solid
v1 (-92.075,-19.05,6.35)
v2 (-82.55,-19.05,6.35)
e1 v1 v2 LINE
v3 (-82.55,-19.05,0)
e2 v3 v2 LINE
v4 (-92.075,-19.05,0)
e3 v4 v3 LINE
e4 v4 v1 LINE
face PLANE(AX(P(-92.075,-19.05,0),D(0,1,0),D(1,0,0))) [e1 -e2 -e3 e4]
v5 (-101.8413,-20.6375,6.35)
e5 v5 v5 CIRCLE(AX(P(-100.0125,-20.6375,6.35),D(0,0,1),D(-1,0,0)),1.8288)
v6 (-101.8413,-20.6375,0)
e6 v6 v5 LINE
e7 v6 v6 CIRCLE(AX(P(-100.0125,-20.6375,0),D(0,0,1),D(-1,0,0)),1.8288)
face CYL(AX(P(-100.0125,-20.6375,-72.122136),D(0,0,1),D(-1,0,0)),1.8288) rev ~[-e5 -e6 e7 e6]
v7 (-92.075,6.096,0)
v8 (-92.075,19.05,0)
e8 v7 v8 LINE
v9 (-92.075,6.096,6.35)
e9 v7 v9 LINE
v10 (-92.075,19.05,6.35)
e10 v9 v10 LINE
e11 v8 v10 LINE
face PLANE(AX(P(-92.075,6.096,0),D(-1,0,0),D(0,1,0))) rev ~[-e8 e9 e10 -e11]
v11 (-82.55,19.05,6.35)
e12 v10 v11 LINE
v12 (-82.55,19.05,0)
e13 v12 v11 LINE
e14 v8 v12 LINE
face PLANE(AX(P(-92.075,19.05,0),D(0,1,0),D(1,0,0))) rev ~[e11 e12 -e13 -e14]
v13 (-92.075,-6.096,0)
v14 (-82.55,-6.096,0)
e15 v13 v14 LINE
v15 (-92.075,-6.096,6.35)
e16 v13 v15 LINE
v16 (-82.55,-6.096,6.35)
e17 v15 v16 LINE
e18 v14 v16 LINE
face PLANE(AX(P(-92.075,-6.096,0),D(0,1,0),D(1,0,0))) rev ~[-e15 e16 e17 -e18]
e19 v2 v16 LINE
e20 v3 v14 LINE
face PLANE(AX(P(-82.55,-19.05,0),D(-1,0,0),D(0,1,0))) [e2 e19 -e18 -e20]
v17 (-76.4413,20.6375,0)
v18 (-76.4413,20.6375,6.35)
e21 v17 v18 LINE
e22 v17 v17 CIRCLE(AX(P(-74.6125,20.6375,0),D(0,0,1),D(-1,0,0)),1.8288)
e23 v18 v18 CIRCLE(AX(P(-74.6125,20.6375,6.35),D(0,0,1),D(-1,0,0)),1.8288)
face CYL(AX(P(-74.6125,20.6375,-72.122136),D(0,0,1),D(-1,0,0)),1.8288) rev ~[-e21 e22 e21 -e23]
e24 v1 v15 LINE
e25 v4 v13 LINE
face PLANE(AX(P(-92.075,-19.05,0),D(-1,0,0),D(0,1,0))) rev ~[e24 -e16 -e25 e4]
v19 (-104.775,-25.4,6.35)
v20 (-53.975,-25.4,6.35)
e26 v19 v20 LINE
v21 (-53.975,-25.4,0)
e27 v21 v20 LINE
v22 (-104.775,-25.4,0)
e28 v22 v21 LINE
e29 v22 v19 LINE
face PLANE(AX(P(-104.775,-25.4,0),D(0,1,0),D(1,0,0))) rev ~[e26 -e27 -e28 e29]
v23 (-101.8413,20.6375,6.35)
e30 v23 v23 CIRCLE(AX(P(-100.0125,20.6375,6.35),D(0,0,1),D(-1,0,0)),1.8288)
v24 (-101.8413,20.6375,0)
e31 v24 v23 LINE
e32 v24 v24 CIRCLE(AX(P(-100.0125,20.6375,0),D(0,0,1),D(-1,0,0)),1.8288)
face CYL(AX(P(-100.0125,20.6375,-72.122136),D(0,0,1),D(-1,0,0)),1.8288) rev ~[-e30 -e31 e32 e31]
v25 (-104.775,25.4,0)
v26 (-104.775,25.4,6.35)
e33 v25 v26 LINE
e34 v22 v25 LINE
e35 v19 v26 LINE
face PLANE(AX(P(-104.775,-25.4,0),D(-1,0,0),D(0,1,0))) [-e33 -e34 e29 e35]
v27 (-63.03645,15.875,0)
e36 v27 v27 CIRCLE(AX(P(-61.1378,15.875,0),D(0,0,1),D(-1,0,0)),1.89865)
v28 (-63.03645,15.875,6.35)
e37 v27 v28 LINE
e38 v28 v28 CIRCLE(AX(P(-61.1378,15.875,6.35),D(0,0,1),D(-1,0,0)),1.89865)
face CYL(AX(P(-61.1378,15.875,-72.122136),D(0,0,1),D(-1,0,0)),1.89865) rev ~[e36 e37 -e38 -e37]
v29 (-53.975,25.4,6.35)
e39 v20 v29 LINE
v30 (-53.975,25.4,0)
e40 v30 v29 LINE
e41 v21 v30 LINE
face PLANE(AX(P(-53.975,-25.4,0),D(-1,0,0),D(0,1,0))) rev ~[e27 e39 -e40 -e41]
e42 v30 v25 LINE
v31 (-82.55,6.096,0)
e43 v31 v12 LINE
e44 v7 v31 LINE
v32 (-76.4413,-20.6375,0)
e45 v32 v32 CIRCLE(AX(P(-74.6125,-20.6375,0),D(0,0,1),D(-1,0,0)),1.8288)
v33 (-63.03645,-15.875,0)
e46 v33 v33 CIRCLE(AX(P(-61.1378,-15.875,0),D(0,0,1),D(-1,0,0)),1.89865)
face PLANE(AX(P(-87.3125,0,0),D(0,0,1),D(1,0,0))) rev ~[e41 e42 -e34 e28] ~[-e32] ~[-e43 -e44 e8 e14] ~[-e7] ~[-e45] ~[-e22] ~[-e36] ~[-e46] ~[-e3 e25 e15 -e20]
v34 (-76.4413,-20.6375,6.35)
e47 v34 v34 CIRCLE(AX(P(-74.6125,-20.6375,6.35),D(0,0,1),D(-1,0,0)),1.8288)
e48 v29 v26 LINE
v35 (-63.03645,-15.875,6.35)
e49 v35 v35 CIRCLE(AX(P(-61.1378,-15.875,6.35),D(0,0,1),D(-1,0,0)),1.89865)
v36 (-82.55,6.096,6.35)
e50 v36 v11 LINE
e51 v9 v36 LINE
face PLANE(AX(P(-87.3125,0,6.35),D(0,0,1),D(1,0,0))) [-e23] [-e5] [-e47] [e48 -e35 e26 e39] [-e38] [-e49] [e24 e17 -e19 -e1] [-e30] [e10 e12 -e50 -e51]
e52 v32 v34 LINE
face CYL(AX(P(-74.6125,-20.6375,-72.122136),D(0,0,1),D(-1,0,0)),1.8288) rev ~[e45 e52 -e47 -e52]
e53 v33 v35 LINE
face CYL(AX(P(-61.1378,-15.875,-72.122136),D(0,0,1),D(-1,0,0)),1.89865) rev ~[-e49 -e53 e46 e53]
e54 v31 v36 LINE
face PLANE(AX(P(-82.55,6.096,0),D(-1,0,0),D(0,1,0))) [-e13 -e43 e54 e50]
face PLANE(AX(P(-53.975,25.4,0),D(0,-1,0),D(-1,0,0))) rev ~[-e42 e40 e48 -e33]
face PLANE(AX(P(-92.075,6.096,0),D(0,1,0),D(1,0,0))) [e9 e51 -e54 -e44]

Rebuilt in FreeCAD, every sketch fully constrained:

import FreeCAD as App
import Part
import Sketcher

V = App.Vector
Q = App.Units.Quantity

doc = App.newDocument("Part")
body = doc.addObject("PartDesign::Body", "Body")

# Sketch on XY plane
sketch1 = body.newObject("Sketcher::SketchObject", "Sketch")
sketch1.AttachmentSupport = (doc.getObject("XY_Plane"), [""])
sketch1.MapMode = "FlatFace"
sketch1.addGeometry(Part.LineSegment(V(-105, 25, 0), V(-105, -25, 0)), False)
sketch1.addGeometry(Part.LineSegment(V(-105, -25, 0), V(-54, -25, 0)), False)
sketch1.addGeometry(Part.LineSegment(V(-54, -25, 0), V(-54, 25, 0)), False)
sketch1.addGeometry(Part.LineSegment(V(-54, 25, 0), V(-105, 25, 0)), False)
sketch1.addGeometry(Part.LineSegment(V(-83, -19, 0), V(-92, -19, 0)), False)
sketch1.addGeometry(Part.LineSegment(V(-92, -19, 0), V(-92, -6, 0)), False)
sketch1.addGeometry(Part.LineSegment(V(-92, -6, 0), V(-83, -6, 0)), False)
sketch1.addGeometry(Part.LineSegment(V(-83, -6, 0), V(-83, -19, 0)), False)
sketch1.addGeometry(Part.LineSegment(V(-83, 6, 0), V(-92, 6, 0)), False)
sketch1.addGeometry(Part.LineSegment(V(-92, 6, 0), V(-92, 19, 0)), False)
sketch1.addGeometry(Part.LineSegment(V(-92, 19, 0), V(-83, 19, 0)), False)
sketch1.addGeometry(Part.LineSegment(V(-83, 19, 0), V(-83, 6, 0)), False)
sketch1.addConstraint(Sketcher.Constraint("Coincident", 0, 2, 1, 1))
sketch1.addConstraint(Sketcher.Constraint("Coincident", 1, 2, 2, 1))
sketch1.addConstraint(Sketcher.Constraint("Coincident", 2, 2, 3, 1))
sketch1.addConstraint(Sketcher.Constraint("Coincident", 3, 2, 0, 1))
sketch1.addConstraint(Sketcher.Constraint("Coincident", 4, 2, 5, 1))
sketch1.addConstraint(Sketcher.Constraint("Coincident", 5, 2, 6, 1))
sketch1.addConstraint(Sketcher.Constraint("Coincident", 6, 2, 7, 1))
sketch1.addConstraint(Sketcher.Constraint("Coincident", 7, 2, 4, 1))
sketch1.addConstraint(Sketcher.Constraint("Coincident", 8, 2, 9, 1))
sketch1.addConstraint(Sketcher.Constraint("Coincident", 9, 2, 10, 1))
sketch1.addConstraint(Sketcher.Constraint("Coincident", 10, 2, 11, 1))
sketch1.addConstraint(Sketcher.Constraint("Coincident", 11, 2, 8, 1))
sketch1.addConstraint(Sketcher.Constraint("Vertical", 0))
sketch1.addConstraint(Sketcher.Constraint("Horizontal", 1))
sketch1.addConstraint(Sketcher.Constraint("Vertical", 2))
sketch1.addConstraint(Sketcher.Constraint("Horizontal", 3))
sketch1.addConstraint(Sketcher.Constraint("Horizontal", 4))
sketch1.addConstraint(Sketcher.Constraint("Vertical", 5))
sketch1.addConstraint(Sketcher.Constraint("Horizontal", 6))
sketch1.addConstraint(Sketcher.Constraint("Vertical", 7))
sketch1.addConstraint(Sketcher.Constraint("Horizontal", 8))
sketch1.addConstraint(Sketcher.Constraint("Vertical", 9))
sketch1.addConstraint(Sketcher.Constraint("Horizontal", 10))
sketch1.addConstraint(Sketcher.Constraint("Vertical", 11))
sketch1.addConstraint(Sketcher.Constraint("Symmetric", 5, 2, 8, 2, -1))
sketch1.addConstraint(Sketcher.Constraint("Symmetric", 7, 2, 10, 2, -1))
sketch1.addConstraint(Sketcher.Constraint("Equal", 3, 0))
sketch1.addConstraint(Sketcher.Constraint("DistanceX", 1, 1, 1, 2, Q("2 in")))
sketch1.addConstraint(Sketcher.Constraint("DistanceY", 0, 2, -1, 1, Q("1 in")))
sketch1.addConstraint(Sketcher.Constraint("DistanceY", 5, 1, 5, 2, Q("0.51 in")))
sketch1.addConstraint(Sketcher.Constraint("DistanceX", 0, 2, 4, 2, Q("0.5 in")))
sketch1.addConstraint(Sketcher.Constraint("DistanceY", 4, 2, 9, 2, Q("1.5 in")))
sketch1.addConstraint(Sketcher.Constraint("DistanceX", 4, 2, 4, 1, Q("0.375 in")))
sketch1.addConstraint(Sketcher.Constraint("DistanceX", 6, 2, -1, 1, Q("3.25 in")))
pad1 = body.newObject("PartDesign::Pad", "Pad")
pad1.Profile = sketch1
pad1.Length = Q("0.25 in")

# Sketch on XY plane
sketch2 = body.newObject("Sketcher::SketchObject", "Sketch001")
sketch2.AttachmentSupport = (doc.getObject("XY_Plane"), [""])
sketch2.MapMode = "FlatFace"
sketch2.addGeometry(Part.Circle(V(-100, 20.6, 0), V(0, 0, 1), 1.8), False)
sketch2.addGeometry(Part.Circle(V(-74.6, 20.6, 0), V(0, 0, 1), 1.8), False)
sketch2.addGeometry(Part.Circle(V(-74.6, -20.6, 0), V(0, 0, 1), 1.8), False)
sketch2.addGeometry(Part.Circle(V(-100, -20.6, 0), V(0, 0, 1), 1.8), False)
sketch2.addConstraint(Sketcher.Constraint("Equal", 0, 1))
sketch2.addConstraint(Sketcher.Constraint("Equal", 1, 2))
sketch2.addConstraint(Sketcher.Constraint("Equal", 2, 3))
sketch2.addConstraint(Sketcher.Constraint("Symmetric", 1, 3, 2, 3, -1))
sketch2.addConstraint(Sketcher.Constraint("Symmetric", 0, 3, 3, 3, -1))
sketch2.addConstraint(Sketcher.Constraint("Horizontal", 0, 3, 1, 3))
sketch2.addConstraint(Sketcher.Constraint("Diameter", 0, Q("0.144 in")))
sketch2.addConstraint(Sketcher.Constraint("DistanceX", 0, 3, 1, 3, Q("1 in")))
sketch2.addConstraint(Sketcher.Constraint("DistanceX", 0, 3, -1, 1, Q("3.9375 in")))
sketch2.addConstraint(Sketcher.Constraint("DistanceY", -1, 1, 0, 3, Q("0.8125 in")))
doc.recompute()
hole = body.newObject("PartDesign::Hole", "Hole")
hole.Profile = sketch2
hole.ThreadType = "None"
hole.Diameter = Q("0.144 in")
hole.DepthType = "ThroughAll"
hole.Reversed = True

# Sketch on XY plane
sketch3 = body.newObject("Sketcher::SketchObject", "Sketch002")
sketch3.AttachmentSupport = (doc.getObject("XY_Plane"), [""])
sketch3.MapMode = "FlatFace"
sketch3.addGeometry(Part.Circle(V(-61.1, -15.9, 0), V(0, 0, 1), 1.9), False)
sketch3.addGeometry(Part.Circle(V(-61.1, 15.9, 0), V(0, 0, 1), 1.9), False)
sketch3.addConstraint(Sketcher.Constraint("Equal", 0, 1))
sketch3.addConstraint(Sketcher.Constraint("Symmetric", 0, 3, 1, 3, -1))
sketch3.addConstraint(Sketcher.Constraint("Diameter", 0, Q("0.1495 in")))
sketch3.addConstraint(Sketcher.Constraint("DistanceY", 0, 3, 1, 3, Q("1.25 in")))
sketch3.addConstraint(Sketcher.Constraint("DistanceX", 0, 3, -1, 1, Q("2.407 in")))
doc.recompute()
hole2 = body.newObject("PartDesign::Hole", "Hole001")
hole2.Profile = sketch3
hole2.ThreadType = "None"
hole2.Diameter = Q("0.1495 in")
hole2.DepthType = "ThroughAll"
hole2.Reversed = True

doc.recompute()
